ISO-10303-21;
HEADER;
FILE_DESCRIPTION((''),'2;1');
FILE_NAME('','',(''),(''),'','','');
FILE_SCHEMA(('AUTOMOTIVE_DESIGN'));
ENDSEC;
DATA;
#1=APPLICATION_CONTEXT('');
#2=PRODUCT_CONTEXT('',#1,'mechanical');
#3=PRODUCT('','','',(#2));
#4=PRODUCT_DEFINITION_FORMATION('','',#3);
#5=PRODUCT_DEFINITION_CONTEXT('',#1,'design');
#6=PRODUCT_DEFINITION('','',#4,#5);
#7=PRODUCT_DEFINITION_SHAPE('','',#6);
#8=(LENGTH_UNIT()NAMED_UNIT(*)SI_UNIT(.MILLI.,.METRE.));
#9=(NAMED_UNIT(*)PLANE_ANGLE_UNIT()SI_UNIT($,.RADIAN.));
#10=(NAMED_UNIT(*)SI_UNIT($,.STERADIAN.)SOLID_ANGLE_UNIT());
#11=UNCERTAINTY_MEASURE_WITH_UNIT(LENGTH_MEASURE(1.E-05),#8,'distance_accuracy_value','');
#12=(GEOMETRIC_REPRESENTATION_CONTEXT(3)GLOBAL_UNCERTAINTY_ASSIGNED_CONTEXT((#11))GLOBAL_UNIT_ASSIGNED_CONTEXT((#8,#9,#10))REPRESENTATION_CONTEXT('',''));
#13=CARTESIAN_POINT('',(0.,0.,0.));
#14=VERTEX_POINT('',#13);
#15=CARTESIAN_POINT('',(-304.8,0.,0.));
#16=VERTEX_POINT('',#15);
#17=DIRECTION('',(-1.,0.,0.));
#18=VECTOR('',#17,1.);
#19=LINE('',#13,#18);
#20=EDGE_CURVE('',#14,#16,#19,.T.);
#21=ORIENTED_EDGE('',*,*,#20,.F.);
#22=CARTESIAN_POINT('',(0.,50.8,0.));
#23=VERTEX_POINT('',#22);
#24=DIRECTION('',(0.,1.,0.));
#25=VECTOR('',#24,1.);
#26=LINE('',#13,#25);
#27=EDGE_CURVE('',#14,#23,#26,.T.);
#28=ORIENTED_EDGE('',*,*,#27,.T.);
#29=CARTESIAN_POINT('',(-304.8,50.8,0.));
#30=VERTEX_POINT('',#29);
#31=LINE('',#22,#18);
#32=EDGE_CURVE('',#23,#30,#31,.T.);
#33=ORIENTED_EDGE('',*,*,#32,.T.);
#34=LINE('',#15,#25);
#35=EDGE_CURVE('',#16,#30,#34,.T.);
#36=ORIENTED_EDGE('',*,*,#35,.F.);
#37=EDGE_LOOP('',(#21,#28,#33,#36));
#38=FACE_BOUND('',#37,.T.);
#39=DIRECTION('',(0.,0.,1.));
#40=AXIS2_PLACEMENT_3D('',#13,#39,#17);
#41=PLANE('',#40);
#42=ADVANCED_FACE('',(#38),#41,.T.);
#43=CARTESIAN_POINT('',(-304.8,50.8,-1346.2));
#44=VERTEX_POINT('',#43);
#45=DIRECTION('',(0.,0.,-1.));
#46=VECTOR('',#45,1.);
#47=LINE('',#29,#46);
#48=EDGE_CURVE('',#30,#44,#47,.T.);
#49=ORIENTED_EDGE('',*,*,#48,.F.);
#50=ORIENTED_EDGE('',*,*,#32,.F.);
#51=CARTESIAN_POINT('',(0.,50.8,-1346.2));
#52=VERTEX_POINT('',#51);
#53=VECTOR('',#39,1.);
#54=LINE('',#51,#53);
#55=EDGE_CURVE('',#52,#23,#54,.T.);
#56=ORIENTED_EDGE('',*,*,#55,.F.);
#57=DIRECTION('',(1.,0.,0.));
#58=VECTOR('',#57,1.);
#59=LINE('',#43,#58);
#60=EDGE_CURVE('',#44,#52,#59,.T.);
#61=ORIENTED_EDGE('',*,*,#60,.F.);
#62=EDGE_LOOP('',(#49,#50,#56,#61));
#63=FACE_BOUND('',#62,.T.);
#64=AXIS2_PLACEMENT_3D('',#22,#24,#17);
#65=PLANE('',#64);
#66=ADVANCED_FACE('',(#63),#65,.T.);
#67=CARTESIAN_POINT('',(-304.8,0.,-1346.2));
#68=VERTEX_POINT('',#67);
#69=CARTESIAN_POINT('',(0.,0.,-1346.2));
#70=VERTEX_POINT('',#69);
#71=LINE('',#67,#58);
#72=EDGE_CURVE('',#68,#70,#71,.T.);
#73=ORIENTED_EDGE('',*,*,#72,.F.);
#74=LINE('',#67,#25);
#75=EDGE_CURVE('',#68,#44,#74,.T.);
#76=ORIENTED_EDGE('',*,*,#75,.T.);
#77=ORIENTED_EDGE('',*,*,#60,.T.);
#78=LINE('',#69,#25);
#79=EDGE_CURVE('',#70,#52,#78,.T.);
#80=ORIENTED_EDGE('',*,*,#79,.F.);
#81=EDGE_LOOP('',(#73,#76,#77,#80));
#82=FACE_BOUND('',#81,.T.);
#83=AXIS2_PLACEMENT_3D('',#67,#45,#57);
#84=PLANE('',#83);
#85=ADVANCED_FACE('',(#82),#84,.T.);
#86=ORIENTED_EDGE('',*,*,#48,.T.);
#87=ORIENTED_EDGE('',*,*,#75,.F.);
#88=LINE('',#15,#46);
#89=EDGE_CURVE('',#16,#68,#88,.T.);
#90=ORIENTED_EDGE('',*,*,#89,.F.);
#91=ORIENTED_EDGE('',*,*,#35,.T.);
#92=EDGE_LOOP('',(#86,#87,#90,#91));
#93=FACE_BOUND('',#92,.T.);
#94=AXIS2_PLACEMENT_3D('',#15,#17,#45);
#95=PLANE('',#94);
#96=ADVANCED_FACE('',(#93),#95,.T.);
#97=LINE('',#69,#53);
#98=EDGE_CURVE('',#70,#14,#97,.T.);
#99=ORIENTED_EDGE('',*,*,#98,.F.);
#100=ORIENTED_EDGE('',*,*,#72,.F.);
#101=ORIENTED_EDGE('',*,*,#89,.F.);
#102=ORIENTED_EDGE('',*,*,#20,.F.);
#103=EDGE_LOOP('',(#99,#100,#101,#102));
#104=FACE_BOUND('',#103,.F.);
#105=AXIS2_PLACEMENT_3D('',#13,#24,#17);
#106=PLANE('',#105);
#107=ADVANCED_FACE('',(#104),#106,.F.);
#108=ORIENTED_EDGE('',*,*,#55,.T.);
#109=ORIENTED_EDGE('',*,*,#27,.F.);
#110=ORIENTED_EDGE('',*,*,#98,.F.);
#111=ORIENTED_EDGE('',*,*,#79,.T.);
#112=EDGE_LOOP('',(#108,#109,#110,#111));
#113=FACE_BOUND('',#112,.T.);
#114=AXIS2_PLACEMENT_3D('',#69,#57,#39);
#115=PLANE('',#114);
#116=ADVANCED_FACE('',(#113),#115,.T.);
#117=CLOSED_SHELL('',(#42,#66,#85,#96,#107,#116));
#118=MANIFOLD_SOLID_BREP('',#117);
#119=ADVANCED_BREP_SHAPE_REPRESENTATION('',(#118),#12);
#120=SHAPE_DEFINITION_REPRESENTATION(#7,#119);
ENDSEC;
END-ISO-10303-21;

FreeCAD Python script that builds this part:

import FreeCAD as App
import Part
import Sketcher

V = App.Vector
Q = App.Units.Quantity


def add_polygon(sketch, points):
    """Adds a closed chain of lines whose ends are joined by coincident constraints."""
    first, n = sketch.GeometryCount, len(points)
    for a, b in zip(points, points[1:] + points[:1]):
        sketch.addGeometry(Part.LineSegment(App.Vector(*a, 0), App.Vector(*b, 0)), False)
    for i in range(n):
        sketch.addConstraint(Sketcher.Constraint("Coincident", first + i, 2, first + (i + 1) % n, 1))

doc = App.newDocument("Part")
body = doc.addObject("PartDesign::Body", "Body")

sketch1 = doc.addObject("Sketcher::SketchObject", "Sketch")
body.addObject(sketch1)
sketch1.AttachmentSupport = (doc.XZ_Plane, [""])
sketch1.MapMode = "FlatFace"
add_polygon(sketch1, [(-304.8, 0), (0, 0), (0, -1346.2), (-304.8, -1346.2)])
sketch1.addConstraint([
    Sketcher.Constraint("Horizontal", 0),
    Sketcher.Constraint("Vertical", 1),
    Sketcher.Constraint("Horizontal", 2),
    Sketcher.Constraint("Vertical", 3),
    Sketcher.Constraint("Coincident", 0, 2, -1, 1),
    Sketcher.Constraint("DistanceX", 0, 1, 0, 2, Q("12 in")),
    Sketcher.Constraint("DistanceY", 1, 2, 1, 1, Q("53 in")),
])
pad1 = doc.addObject("PartDesign::Pad", "Pad")
body.addObject(pad1)
pad1.Profile = sketch1
pad1.Length = Q("2 in")
pad1.Reversed = True

doc.recompute()
